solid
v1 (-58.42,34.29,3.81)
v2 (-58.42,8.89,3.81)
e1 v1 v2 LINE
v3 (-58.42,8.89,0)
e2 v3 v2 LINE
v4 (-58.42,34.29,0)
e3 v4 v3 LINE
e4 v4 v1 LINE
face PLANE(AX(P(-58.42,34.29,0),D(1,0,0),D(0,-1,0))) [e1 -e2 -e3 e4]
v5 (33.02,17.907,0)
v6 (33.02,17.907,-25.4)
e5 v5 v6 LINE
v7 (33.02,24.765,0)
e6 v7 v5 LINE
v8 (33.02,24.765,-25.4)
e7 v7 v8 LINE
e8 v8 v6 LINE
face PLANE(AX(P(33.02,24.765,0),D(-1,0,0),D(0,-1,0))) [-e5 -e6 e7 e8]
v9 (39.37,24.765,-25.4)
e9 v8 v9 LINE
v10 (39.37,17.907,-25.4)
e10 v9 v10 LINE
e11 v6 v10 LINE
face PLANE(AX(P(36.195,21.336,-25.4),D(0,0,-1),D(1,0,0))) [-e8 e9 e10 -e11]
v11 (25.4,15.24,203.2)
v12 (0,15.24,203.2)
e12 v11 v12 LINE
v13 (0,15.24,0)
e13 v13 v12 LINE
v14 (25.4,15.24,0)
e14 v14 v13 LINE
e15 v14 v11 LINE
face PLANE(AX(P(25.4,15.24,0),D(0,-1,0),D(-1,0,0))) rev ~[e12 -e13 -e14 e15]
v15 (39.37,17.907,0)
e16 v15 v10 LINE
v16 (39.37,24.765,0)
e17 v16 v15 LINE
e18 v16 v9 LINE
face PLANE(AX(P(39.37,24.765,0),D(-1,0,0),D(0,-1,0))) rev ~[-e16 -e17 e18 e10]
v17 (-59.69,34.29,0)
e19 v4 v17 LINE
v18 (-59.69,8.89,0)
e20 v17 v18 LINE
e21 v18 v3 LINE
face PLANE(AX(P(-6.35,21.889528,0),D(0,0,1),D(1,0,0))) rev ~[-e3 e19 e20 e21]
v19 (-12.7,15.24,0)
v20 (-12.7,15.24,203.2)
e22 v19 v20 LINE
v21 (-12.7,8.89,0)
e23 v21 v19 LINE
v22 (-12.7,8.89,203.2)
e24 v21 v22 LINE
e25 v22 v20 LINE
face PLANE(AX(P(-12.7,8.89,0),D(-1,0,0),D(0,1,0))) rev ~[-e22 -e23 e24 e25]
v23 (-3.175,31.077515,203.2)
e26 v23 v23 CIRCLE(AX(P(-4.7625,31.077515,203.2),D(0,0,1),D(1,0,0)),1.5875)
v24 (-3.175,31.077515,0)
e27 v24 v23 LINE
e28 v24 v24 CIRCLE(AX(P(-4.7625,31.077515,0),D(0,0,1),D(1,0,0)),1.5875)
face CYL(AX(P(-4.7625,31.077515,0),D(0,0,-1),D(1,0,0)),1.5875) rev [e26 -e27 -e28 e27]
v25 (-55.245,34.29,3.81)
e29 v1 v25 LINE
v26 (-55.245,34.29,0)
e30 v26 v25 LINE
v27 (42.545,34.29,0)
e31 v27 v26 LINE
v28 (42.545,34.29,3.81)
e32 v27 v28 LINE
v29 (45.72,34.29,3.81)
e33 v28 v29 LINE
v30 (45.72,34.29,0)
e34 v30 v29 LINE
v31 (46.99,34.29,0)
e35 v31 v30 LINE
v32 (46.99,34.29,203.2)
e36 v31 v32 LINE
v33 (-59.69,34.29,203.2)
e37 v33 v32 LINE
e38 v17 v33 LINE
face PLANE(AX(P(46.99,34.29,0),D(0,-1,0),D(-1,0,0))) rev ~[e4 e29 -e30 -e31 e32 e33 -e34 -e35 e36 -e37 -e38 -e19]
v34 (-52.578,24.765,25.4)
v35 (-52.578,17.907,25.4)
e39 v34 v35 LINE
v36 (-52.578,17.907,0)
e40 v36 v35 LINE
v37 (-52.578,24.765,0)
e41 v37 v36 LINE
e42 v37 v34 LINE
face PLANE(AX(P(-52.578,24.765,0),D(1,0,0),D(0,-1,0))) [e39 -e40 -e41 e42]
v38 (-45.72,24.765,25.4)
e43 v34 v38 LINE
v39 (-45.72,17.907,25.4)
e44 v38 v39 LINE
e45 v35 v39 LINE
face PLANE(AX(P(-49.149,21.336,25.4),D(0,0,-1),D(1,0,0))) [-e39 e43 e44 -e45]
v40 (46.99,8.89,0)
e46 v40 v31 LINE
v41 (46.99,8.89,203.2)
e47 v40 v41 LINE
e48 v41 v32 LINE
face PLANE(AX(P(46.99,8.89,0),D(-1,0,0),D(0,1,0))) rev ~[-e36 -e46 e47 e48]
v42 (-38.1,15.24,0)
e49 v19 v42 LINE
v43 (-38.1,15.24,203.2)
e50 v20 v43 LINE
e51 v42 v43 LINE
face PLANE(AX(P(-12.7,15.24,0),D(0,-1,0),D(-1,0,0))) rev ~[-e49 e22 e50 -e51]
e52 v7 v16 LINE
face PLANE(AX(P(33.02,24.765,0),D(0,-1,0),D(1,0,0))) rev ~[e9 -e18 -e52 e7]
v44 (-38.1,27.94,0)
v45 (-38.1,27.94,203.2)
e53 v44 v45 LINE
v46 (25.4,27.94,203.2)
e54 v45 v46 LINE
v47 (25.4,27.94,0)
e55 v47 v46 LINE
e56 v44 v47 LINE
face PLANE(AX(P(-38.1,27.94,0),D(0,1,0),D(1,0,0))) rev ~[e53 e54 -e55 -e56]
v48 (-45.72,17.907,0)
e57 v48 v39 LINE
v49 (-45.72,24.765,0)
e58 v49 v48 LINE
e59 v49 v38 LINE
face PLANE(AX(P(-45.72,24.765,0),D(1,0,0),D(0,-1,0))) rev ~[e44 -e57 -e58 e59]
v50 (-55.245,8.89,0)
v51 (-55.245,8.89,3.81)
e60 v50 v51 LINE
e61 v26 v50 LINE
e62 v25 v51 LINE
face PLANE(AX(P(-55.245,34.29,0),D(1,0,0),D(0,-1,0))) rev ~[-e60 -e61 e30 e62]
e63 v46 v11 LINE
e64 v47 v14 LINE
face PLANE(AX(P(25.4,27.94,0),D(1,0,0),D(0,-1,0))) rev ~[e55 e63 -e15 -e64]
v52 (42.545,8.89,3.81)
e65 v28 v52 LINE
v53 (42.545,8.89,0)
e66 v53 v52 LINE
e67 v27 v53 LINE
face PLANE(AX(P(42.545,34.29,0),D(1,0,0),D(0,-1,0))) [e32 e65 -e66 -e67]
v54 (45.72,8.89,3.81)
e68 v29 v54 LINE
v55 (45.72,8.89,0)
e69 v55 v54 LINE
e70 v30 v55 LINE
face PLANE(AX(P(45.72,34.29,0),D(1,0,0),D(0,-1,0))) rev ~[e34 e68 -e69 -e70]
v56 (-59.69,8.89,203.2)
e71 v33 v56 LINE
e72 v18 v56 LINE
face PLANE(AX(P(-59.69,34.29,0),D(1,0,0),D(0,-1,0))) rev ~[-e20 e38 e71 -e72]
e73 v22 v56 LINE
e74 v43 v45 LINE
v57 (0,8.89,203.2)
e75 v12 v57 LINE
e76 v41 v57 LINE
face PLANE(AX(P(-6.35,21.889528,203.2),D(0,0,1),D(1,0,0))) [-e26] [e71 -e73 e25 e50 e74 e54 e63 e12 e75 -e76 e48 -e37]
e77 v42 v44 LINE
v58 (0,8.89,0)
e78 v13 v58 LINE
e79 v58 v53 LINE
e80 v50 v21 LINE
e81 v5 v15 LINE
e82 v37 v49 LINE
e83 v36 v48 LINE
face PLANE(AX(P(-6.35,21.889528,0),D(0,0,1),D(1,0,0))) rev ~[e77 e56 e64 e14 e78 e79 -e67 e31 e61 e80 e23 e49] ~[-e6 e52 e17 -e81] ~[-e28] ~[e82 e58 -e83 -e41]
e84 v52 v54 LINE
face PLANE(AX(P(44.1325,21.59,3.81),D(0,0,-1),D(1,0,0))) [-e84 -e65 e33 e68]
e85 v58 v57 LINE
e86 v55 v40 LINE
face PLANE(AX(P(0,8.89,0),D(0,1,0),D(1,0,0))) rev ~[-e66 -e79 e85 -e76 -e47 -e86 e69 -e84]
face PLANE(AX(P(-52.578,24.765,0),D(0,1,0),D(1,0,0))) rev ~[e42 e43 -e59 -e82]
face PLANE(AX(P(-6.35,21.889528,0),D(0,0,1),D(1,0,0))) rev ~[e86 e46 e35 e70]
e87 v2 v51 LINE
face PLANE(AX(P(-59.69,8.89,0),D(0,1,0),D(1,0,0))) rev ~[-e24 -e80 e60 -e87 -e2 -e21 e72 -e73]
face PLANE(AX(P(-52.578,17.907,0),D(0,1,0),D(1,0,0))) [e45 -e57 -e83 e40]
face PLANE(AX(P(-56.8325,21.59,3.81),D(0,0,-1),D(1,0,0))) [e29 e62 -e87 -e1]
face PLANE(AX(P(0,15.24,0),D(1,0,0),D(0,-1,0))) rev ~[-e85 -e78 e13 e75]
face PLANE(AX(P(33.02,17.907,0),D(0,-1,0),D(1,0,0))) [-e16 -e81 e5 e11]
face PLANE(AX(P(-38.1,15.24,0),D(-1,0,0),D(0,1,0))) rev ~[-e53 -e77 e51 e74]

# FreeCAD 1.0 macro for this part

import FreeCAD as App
import Part
import Sketcher
from FreeCAD import Vector
Q = App.Units.Quantity


def add_polygon(sketch, points):
    """Adds a closed chain of lines whose ends are joined by coincident constraints."""
    first, n = sketch.GeometryCount, len(points)
    for a, b in zip(points, points[1:] + points[:1]):
        sketch.addGeometry(Part.LineSegment(App.Vector(*a, 0), App.Vector(*b, 0)), False)
    for i in range(n):
        sketch.addConstraint(Sketcher.Constraint("Coincident", first + i, 2, first + (i + 1) % n, 1))

doc = App.newDocument("Part")
params = doc.addObject("Spreadsheet::Sheet", "Params")
for row, (alias, value) in enumerate([
    ("sketch1_width", "1 in"),
    ("sketch1_diameter", "0.125 in"),
    ("sketch1_width2", "4.2 in"),
    ("sketch1_width3", "2.5 in"),
    ("sketch1_height", "0.5 in"),
    ("pad1_length", "8 in"),
    ("sketch2_width", "0.15 in"),
    ("sketch2_height", "0.175 in"),
    ("pocket1_length", "1 in"),
    ("sketch3_width", "0.15 in"),
    ("pocket2_length", "1 in"),
    ("sketch4_width", "0.27 in"),
    ("pocket3_length", "1 in"),
    ("sketch5_width", "0.25 in"),
    ("sketch5_height", "0.27 in"),
    ("pad2_length", "1 in"),
    ("sketch6_height", "1 in"),
    ("sketch6_width", "0.125 in"),
    ("pocket4_length", "0.15 in"),
    ("sketch7_height", "1 in"),
    ("sketch7_width", "0.125 in"),
    ("pocket5_length", "0.15 in"),
], start=1):
    params.set(f"A{row}", alias)
    params.set(f"B{row}", "=" + value)
    params.setAlias(f"B{row}", alias)

body = doc.addObject("PartDesign::Body", "Body")

sketch1 = doc.addObject("Sketcher::SketchObject", "Sketch")
body.addObject(sketch1)
sketch1.AttachmentSupport = (doc.XY_Plane, [""])
sketch1.MapMode = "FlatFace"
add_polygon(sketch1, [(46.99, 34.29), (-59.69, 34.29), (-59.69, 8.89), (-12.7, 8.89), (-12.7, 15.24), (-38.1, 15.24), (-38.1, 27.94), (25.4, 27.94), (25.4, 15.24), (0, 15.24), (0, 8.89), (46.99, 8.89)])
sketch1.addGeometry(Part.Circle(Vector(-4.7625, 31.077515, 0), Vector(0, 0, 1), 1.5875), False)
sketch1.addConstraint(Sketcher.Constraint("Horizontal", 0))
sketch1.addConstraint(Sketcher.Constraint("Vertical", 1))
sketch1.addConstraint(Sketcher.Constraint("Horizontal", 2))
sketch1.addConstraint(Sketcher.Constraint("Vertical", 3))
sketch1.addConstraint(Sketcher.Constraint("Horizontal", 4))
sketch1.addConstraint(Sketcher.Constraint("Vertical", 5))
sketch1.addConstraint(Sketcher.Constraint("Horizontal", 6))
sketch1.addConstraint(Sketcher.Constraint("Vertical", 7))
sketch1.addConstraint(Sketcher.Constraint("Horizontal", 8))
sketch1.addConstraint(Sketcher.Constraint("Vertical", 9))
sketch1.addConstraint(Sketcher.Constraint("Horizontal", 10))
sketch1.addConstraint(Sketcher.Constraint("Vertical", 11))
sketch1.addConstraint(Sketcher.Constraint("PointOnObject", 8, 2, -2))
sketch1.addConstraint(Sketcher.Constraint("Horizontal", 4, 2, 7, 2))
sketch1.addConstraint(Sketcher.Constraint("Horizontal", 2, 2, 9, 2))
sketch1.addConstraint(Sketcher.Constraint("Equal", 4, 8))
sketch1.addConstraint(Sketcher.Constraint("Equal", 2, 10))
sketch1.addConstraint(Sketcher.Constraint("Equal", 8, 1))
sketch1.addConstraint(Sketcher.Constraint("DistanceX", 4, 2, 4, 1, Q("1 in")))
sketch1.addConstraint(Sketcher.Constraint("Diameter", 12, Q("0.125 in")))
sketch1.addConstraint(Sketcher.Constraint("DistanceX", 0, 2, 0, 1, Q("4.2 in")))
sketch1.addConstraint(Sketcher.Constraint("DistanceX", 6, 1, 6, 2, Q("2.5 in")))
sketch1.addConstraint(Sketcher.Constraint("DistanceY", 5, 1, 5, 2, Q("0.5 in")))
sketch1.addConstraint(Sketcher.Constraint("DistanceY", 3, 1, 3, 2, Q("0.25 in")))
sketch1.addConstraint(Sketcher.Constraint("DistanceY", -1, 1, 3, 2, Q("0.6 in")))
sketch1.addConstraint(Sketcher.Constraint("DistanceX", 12, 3, -1, 1, Q("0.1875 in")))
sketch1.addConstraint(Sketcher.Constraint("DistanceY", -1, 1, 12, 3, Q("31.077515 mm")))
sketch1.setExpression("Constraints[30]", "Params.sketch1_width")
sketch1.setExpression("Constraints[31]", "Params.sketch1_diameter")
sketch1.setExpression("Constraints[32]", "Params.sketch1_width2")
sketch1.setExpression("Constraints[33]", "Params.sketch1_width3")
sketch1.setExpression("Constraints[34]", "Params.sketch1_height")
pad1 = doc.addObject("PartDesign::Pad", "Pad")
body.addObject(pad1)
pad1.Profile = sketch1
pad1.setExpression("Length", "Params.pad1_length")

sketch2 = doc.addObject("Sketcher::SketchObject", "Sketch001")
body.addObject(sketch2)
sketch2.AttachmentSupport = (doc.XZ_Plane, [""])
sketch2.MapMode = "FlatFace"
sketch2.AttachmentOffset = App.Placement(Vector(0, 0, -1.35 * 25.4), App.Rotation())
add_polygon(sketch2, [(-54.61, 207.645), (-54.61, 203.2), (-58.42, 203.2), (-58.42, 207.645)])
sketch2.addConstraint(Sketcher.Constraint("Vertical", 0))
sketch2.addConstraint(Sketcher.Constraint("Horizontal", 1))
sketch2.addConstraint(Sketcher.Constraint("Vertical", 2))
sketch2.addConstraint(Sketcher.Constraint("Horizontal", 3))
sketch2.addConstraint(Sketcher.Constraint("DistanceY", -1, 1, 0, 2, Q("8 in")))
sketch2.addConstraint(Sketcher.Constraint("DistanceX", 1, 2, 1, 1, Q("0.15 in")))
sketch2.addConstraint(Sketcher.Constraint("DistanceX", 1, 2, -1, 1, Q("2.3 in")))
sketch2.addConstraint(Sketcher.Constraint("DistanceY", 0, 2, 0, 1, Q("0.175 in")))
sketch2.setExpression("Constraints[9]", "Params.sketch2_width")
sketch2.setExpression("Constraints[11]", "Params.sketch2_height")
pocket1 = doc.addObject("PartDesign::Pocket", "Pocket")
body.addObject(pocket1)
pocket1.Profile = sketch2
pocket1.setExpression("Length", "Params.pocket1_length")
pocket1.Reversed = True

sketch3 = doc.addObject("Sketcher::SketchObject", "Sketch002")
body.addObject(sketch3)
sketch3.AttachmentSupport = (doc.XZ_Plane, [""])
sketch3.MapMode = "FlatFace"
sketch3.AttachmentOffset = App.Placement(Vector(0, 0, -1.35 * 25.4), App.Rotation())
add_polygon(sketch3, [(41.91, 207.644923), (45.72, 207.644923), (45.72, 203.2), (41.928444, 203.2)])
sketch3.addConstraint(Sketcher.Constraint("Horizontal", 0))
sketch3.addConstraint(Sketcher.Constraint("Vertical", 1))
sketch3.addConstraint(Sketcher.Constraint("Horizontal", 2))
sketch3.addConstraint(Sketcher.Constraint("DistanceY", -1, 1, 1, 2, Q("8 in")))
sketch3.addConstraint(Sketcher.Constraint("DistanceX", 0, 1, 0, 2, Q("0.15 in")))
sketch3.addConstraint(Sketcher.Constraint("DistanceX", -1, 1, 0, 2, Q("1.8 in")))
sketch3.addConstraint(Sketcher.Constraint("Distance", 3, Q("4.444961 mm")))
sketch3.addConstraint(Sketcher.Constraint("DistanceX", 2, 2, 2, 1, Q("3.791556 mm")))
sketch3.setExpression("Constraints[8]", "Params.sketch3_width")
pocket2 = doc.addObject("PartDesign::Pocket", "Pocket001")
body.addObject(pocket2)
pocket2.Profile = sketch3
pocket2.setExpression("Length", "Params.pocket2_length")
pocket2.Reversed = True

sketch4 = doc.addObject("Sketcher::SketchObject", "Sketch003")
body.addObject(sketch4)
sketch4.AttachmentSupport = (doc.XY_Plane, [""])
sketch4.MapMode = "FlatFace"
add_polygon(sketch4, [(-52.578, 17.907), (-52.578, 24.765), (-45.72, 24.765), (-45.72, 17.907)])
sketch4.addConstraint(Sketcher.Constraint("Vertical", 0))
sketch4.addConstraint(Sketcher.Constraint("Horizontal", 1))
sketch4.addConstraint(Sketcher.Constraint("Vertical", 2))
sketch4.addConstraint(Sketcher.Constraint("Horizontal", 3))
sketch4.addConstraint(Sketcher.Constraint("Equal", 3, 0))
sketch4.addConstraint(Sketcher.Constraint("DistanceX", 1, 1, 1, 2, Q("0.27 in")))
sketch4.addConstraint(Sketcher.Constraint("DistanceX", 1, 2, -1, 1, Q("1.8 in")))
sketch4.addConstraint(Sketcher.Constraint("DistanceY", -1, 1, 0, 2, Q("0.975 in")))
sketch4.setExpression("Constraints[9]", "Params.sketch4_width")
pocket3 = doc.addObject("PartDesign::Pocket", "Pocket002")
body.addObject(pocket3)
pocket3.Profile = sketch4
pocket3.setExpression("Length", "Params.pocket3_length")
pocket3.Reversed = True

sketch5 = doc.addObject("Sketcher::SketchObject", "Sketch004")
body.addObject(sketch5)
sketch5.AttachmentSupport = (doc.XY_Plane, [""])
sketch5.MapMode = "FlatFace"
add_polygon(sketch5, [(33.02, 17.907), (33.02, 24.765), (39.37, 24.765), (39.37, 17.907)])
sketch5.addConstraint(Sketcher.Constraint("Vertical", 0))
sketch5.addConstraint(Sketcher.Constraint("Horizontal", 1))
sketch5.addConstraint(Sketcher.Constraint("Vertical", 2))
sketch5.addConstraint(Sketcher.Constraint("Horizontal", 3))
sketch5.addConstraint(Sketcher.Constraint("DistanceX", 1, 1, 1, 2, Q("0.25 in")))
sketch5.addConstraint(Sketcher.Constraint("DistanceY", 0, 1, 0, 2, Q("0.27 in")))
sketch5.addConstraint(Sketcher.Constraint("DistanceX", -1, 1, 0, 2, Q("1.3 in")))
sketch5.addConstraint(Sketcher.Constraint("DistanceY", -1, 1, 0, 2, Q("0.975 in")))
sketch5.setExpression("Constraints[8]", "Params.sketch5_width")
sketch5.setExpression("Constraints[9]", "Params.sketch5_height")
pad2 = doc.addObject("PartDesign::Pad", "Pad001")
body.addObject(pad2)
pad2.Profile = sketch5
pad2.setExpression("Length", "Params.pad2_length")
pad2.Reversed = True

sketch6 = doc.addObject("Sketcher::SketchObject", "Sketch005")
body.addObject(sketch6)
sketch6.AttachmentSupport = (doc.XY_Plane, [""])
sketch6.MapMode = "FlatFace"
add_polygon(sketch6, [(-58.42, 8.89), (-58.42, 34.29), (-55.245, 34.29), (-55.245, 8.89)])
sketch6.addConstraint(Sketcher.Constraint("Vertical", 0))
sketch6.addConstraint(Sketcher.Constraint("Horizontal", 1))
sketch6.addConstraint(Sketcher.Constraint("Vertical", 2))
sketch6.addConstraint(Sketcher.Constraint("Horizontal", 3))
sketch6.addConstraint(Sketcher.Constraint("DistanceY", 0, 1, 0, 2, Q("1 in")))
sketch6.addConstraint(Sketcher.Constraint("DistanceX", 0, 2, -1, 1, Q("2.3 in")))
sketch6.addConstraint(Sketcher.Constraint("DistanceX", 1, 1, 1, 2, Q("0.125 in")))
sketch6.addConstraint(Sketcher.Constraint("DistanceY", -1, 1, 0, 2, Q("1.35 in")))
sketch6.setExpression("Constraints[8]", "Params.sketch6_height")
sketch6.setExpression("Constraints[10]", "Params.sketch6_width")
pocket4 = doc.addObject("PartDesign::Pocket", "Pocket003")
body.addObject(pocket4)
pocket4.Profile = sketch6
pocket4.setExpression("Length", "Params.pocket4_length")
pocket4.Reversed = True

sketch7 = doc.addObject("Sketcher::SketchObject", "Sketch006")
body.addObject(sketch7)
sketch7.AttachmentSupport = (doc.XY_Plane, [""])
sketch7.MapMode = "FlatFace"
add_polygon(sketch7, [(42.545, 8.89), (42.545, 34.29), (45.72, 34.29), (45.72, 8.89)])
sketch7.addConstraint(Sketcher.Constraint("Vertical", 0))
sketch7.addConstraint(Sketcher.Constraint("Horizontal", 1))
sketch7.addConstraint(Sketcher.Constraint("Vertical", 2))
sketch7.addConstraint(Sketcher.Constraint("Horizontal", 3))
sketch7.addConstraint(Sketcher.Constraint("DistanceY", 0, 1, 0, 2, Q("1 in")))
sketch7.addConstraint(Sketcher.Constraint("DistanceX", -1, 1, 1, 2, Q("1.8 in")))
sketch7.addConstraint(Sketcher.Constraint("DistanceX", 1, 1, 1, 2, Q("0.125 in")))
sketch7.addConstraint(Sketcher.Constraint("DistanceY", -1, 1, 0, 2, Q("1.35 in")))
sketch7.setExpression("Constraints[8]", "Params.sketch7_height")
sketch7.setExpression("Constraints[10]", "Params.sketch7_width")
pocket5 = doc.addObject("PartDesign::Pocket", "Pocket004")
body.addObject(pocket5)
pocket5.Profile = sketch7
pocket5.setExpression("Length", "Params.pocket5_length")
pocket5.Reversed = True

doc.recompute()
